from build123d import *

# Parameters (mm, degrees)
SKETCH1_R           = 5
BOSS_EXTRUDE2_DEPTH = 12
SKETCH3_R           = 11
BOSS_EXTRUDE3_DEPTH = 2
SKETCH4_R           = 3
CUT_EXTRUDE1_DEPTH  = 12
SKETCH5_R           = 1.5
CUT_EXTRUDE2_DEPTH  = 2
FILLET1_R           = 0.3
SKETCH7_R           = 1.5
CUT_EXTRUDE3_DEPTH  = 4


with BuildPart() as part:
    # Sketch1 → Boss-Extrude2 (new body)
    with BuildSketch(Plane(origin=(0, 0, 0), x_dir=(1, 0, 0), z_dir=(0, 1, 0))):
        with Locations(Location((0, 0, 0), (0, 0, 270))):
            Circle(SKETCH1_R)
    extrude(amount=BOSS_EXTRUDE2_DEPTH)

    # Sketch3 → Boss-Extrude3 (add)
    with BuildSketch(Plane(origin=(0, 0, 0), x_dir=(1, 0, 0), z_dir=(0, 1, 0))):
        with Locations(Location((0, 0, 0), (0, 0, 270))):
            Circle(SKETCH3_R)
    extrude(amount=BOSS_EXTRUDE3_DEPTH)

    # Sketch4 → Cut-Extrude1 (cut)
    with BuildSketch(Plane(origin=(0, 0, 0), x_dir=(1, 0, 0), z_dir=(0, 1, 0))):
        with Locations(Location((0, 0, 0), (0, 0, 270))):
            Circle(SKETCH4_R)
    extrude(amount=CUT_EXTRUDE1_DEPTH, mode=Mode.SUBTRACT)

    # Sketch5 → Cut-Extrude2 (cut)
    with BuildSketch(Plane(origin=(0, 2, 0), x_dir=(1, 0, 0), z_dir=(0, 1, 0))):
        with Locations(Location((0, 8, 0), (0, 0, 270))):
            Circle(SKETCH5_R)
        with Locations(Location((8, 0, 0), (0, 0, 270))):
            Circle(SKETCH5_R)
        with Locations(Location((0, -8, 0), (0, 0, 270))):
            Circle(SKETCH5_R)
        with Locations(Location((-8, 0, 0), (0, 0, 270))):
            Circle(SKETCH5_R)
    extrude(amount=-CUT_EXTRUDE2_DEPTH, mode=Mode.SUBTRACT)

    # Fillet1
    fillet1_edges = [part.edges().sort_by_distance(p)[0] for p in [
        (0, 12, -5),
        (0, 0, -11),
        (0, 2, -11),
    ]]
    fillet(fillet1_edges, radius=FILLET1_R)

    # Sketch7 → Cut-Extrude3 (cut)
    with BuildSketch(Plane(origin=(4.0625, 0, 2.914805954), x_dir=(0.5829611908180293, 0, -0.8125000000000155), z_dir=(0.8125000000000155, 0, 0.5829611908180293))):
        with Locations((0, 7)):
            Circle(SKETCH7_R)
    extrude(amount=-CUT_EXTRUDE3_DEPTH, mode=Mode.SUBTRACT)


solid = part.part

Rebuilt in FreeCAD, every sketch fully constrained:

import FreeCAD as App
import Part
import Sketcher

V = App.Vector
Q = App.Units.Quantity


def edges_at(feature, points):
    """Names of the edges that pass closest to the given points."""
    edges = feature.Shape.Edges
    near = lambda p: min(range(len(edges)), key=lambda i: edges[i].distToShape(Part.Vertex(*p))[0])
    return sorted({f"Edge{near(p) + 1}" for p in points})

doc = App.newDocument("Part")
body = doc.addObject("PartDesign::Body", "Body")

# Sketch on XZ plane
sketch1 = body.newObject("Sketcher::SketchObject", "Sketch")
sketch1.AttachmentSupport = (doc.getObject("XZ_Plane"), [""])
sketch1.MapMode = "FlatFace"
sketch1.addGeometry(Part.Circle(V(0, 0, 0), V(0, 0, 1), 5), False)
sketch1.addConstraint([
    Sketcher.Constraint("Coincident", 0, 3, -1, 1),
    Sketcher.Constraint("Diameter", 0, Q("10 mm")),
])
pad1 = body.newObject("PartDesign::Pad", "Pad")
pad1.Profile = sketch1
pad1.Length = 12
pad1.Reversed = True

# Sketch on XZ plane
sketch2 = body.newObject("Sketcher::SketchObject", "Sketch001")
sketch2.AttachmentSupport = (doc.getObject("XZ_Plane"), [""])
sketch2.MapMode = "FlatFace"
sketch2.addGeometry(Part.Circle(V(0, 0, 0), V(0, 0, 1), 11), False)
sketch2.addConstraint([
    Sketcher.Constraint("Coincident", 0, 3, -1, 1),
    Sketcher.Constraint("Diameter", 0, Q("22 mm")),
])
pad2 = body.newObject("PartDesign::Pad", "Pad001")
pad2.Profile = sketch2
pad2.Length = 2
pad2.Reversed = True

# Sketch on XZ plane
sketch3 = body.newObject("Sketcher::SketchObject", "Sketch002")
sketch3.AttachmentSupport = (doc.getObject("XZ_Plane"), [""])
sketch3.MapMode = "FlatFace"
sketch3.addGeometry(Part.Circle(V(0, 0, 0), V(0, 0, 1), 3), False)
sketch3.addConstraint([
    Sketcher.Constraint("Coincident", 0, 3, -1, 1),
    Sketcher.Constraint("Diameter", 0, Q("6 mm")),
])
pocket1 = body.newObject("PartDesign::Pocket", "Pocket")
pocket1.Profile = sketch3
pocket1.Length = 12

# Sketch on XZ plane
sketch4 = body.newObject("Sketcher::SketchObject", "Sketch003")
sketch4.AttachmentSupport = (doc.getObject("XZ_Plane"), [""])
sketch4.MapMode = "FlatFace"
sketch4.AttachmentOffset = App.Placement(V(0, 0, -2), App.Rotation())
sketch4.addGeometry([
    Part.Circle(V(0, -8, 0), V(0, 0, 1), 1.5),
    Part.Circle(V(8, 0, 0), V(0, 0, 1), 1.5),
    Part.Circle(V(0, 8, 0), V(0, 0, 1), 1.5),
    Part.Circle(V(-8, 0, 0), V(0, 0, 1), 1.5),
], False)
sketch4.addConstraint([
    Sketcher.Constraint("Equal", 0, 1),
    Sketcher.Constraint("Equal", 1, 2),
    Sketcher.Constraint("Equal", 2, 3),
    Sketcher.Constraint("Symmetric", 0, 3, 2, 3, -1, 1),
    Sketcher.Constraint("Symmetric", 1, 3, 3, 3, -1, 1),
    Sketcher.Constraint("PointOnObject", 0, 3, -2),
    Sketcher.Constraint("PointOnObject", 1, 3, -1),
    Sketcher.Constraint("Diameter", 0, Q("3 mm")),
    Sketcher.Constraint("DistanceY", 0, 3, -1, 1, Q("8 mm")),
    Sketcher.Constraint("DistanceX", -1, 1, 1, 3, Q("8 mm")),
])
pocket2 = body.newObject("PartDesign::Pocket", "Pocket001")
pocket2.Profile = sketch4
pocket2.Length = 2
pocket2.Reversed = True
doc.recompute()

fillet = body.newObject("PartDesign::Fillet", "Fillet")
fillet.Base = (pocket2, edges_at(pocket2, [(0, 12, -5), (0, 0, -11), (0, 2, -11)]))
fillet.Radius = 0.3

# Sketch on an angled plane
sketch5 = body.newObject("Sketcher::SketchObject", "Sketch004")
sketch5.Placement = App.Placement(V(4.0625, 0, 2.914806), App.Rotation(V(0.582961191, 0, -0.8125), V(0, 1, 0), V(0.8125, 0, 0.582961191), "ZXY"))
sketch5.addGeometry(Part.Circle(V(0, 7, 0), V(0, 0, 1), 1.5), False)
sketch5.addConstraint([
    Sketcher.Constraint("PointOnObject", 0, 3, -2),
    Sketcher.Constraint("Diameter", 0, Q("3 mm")),
    Sketcher.Constraint("DistanceY", -1, 1, 0, 3, Q("7 mm")),
])
pocket3 = body.newObject("PartDesign::Pocket", "Pocket002")
pocket3.Profile = sketch5
pocket3.Length = 4

doc.recompute()
